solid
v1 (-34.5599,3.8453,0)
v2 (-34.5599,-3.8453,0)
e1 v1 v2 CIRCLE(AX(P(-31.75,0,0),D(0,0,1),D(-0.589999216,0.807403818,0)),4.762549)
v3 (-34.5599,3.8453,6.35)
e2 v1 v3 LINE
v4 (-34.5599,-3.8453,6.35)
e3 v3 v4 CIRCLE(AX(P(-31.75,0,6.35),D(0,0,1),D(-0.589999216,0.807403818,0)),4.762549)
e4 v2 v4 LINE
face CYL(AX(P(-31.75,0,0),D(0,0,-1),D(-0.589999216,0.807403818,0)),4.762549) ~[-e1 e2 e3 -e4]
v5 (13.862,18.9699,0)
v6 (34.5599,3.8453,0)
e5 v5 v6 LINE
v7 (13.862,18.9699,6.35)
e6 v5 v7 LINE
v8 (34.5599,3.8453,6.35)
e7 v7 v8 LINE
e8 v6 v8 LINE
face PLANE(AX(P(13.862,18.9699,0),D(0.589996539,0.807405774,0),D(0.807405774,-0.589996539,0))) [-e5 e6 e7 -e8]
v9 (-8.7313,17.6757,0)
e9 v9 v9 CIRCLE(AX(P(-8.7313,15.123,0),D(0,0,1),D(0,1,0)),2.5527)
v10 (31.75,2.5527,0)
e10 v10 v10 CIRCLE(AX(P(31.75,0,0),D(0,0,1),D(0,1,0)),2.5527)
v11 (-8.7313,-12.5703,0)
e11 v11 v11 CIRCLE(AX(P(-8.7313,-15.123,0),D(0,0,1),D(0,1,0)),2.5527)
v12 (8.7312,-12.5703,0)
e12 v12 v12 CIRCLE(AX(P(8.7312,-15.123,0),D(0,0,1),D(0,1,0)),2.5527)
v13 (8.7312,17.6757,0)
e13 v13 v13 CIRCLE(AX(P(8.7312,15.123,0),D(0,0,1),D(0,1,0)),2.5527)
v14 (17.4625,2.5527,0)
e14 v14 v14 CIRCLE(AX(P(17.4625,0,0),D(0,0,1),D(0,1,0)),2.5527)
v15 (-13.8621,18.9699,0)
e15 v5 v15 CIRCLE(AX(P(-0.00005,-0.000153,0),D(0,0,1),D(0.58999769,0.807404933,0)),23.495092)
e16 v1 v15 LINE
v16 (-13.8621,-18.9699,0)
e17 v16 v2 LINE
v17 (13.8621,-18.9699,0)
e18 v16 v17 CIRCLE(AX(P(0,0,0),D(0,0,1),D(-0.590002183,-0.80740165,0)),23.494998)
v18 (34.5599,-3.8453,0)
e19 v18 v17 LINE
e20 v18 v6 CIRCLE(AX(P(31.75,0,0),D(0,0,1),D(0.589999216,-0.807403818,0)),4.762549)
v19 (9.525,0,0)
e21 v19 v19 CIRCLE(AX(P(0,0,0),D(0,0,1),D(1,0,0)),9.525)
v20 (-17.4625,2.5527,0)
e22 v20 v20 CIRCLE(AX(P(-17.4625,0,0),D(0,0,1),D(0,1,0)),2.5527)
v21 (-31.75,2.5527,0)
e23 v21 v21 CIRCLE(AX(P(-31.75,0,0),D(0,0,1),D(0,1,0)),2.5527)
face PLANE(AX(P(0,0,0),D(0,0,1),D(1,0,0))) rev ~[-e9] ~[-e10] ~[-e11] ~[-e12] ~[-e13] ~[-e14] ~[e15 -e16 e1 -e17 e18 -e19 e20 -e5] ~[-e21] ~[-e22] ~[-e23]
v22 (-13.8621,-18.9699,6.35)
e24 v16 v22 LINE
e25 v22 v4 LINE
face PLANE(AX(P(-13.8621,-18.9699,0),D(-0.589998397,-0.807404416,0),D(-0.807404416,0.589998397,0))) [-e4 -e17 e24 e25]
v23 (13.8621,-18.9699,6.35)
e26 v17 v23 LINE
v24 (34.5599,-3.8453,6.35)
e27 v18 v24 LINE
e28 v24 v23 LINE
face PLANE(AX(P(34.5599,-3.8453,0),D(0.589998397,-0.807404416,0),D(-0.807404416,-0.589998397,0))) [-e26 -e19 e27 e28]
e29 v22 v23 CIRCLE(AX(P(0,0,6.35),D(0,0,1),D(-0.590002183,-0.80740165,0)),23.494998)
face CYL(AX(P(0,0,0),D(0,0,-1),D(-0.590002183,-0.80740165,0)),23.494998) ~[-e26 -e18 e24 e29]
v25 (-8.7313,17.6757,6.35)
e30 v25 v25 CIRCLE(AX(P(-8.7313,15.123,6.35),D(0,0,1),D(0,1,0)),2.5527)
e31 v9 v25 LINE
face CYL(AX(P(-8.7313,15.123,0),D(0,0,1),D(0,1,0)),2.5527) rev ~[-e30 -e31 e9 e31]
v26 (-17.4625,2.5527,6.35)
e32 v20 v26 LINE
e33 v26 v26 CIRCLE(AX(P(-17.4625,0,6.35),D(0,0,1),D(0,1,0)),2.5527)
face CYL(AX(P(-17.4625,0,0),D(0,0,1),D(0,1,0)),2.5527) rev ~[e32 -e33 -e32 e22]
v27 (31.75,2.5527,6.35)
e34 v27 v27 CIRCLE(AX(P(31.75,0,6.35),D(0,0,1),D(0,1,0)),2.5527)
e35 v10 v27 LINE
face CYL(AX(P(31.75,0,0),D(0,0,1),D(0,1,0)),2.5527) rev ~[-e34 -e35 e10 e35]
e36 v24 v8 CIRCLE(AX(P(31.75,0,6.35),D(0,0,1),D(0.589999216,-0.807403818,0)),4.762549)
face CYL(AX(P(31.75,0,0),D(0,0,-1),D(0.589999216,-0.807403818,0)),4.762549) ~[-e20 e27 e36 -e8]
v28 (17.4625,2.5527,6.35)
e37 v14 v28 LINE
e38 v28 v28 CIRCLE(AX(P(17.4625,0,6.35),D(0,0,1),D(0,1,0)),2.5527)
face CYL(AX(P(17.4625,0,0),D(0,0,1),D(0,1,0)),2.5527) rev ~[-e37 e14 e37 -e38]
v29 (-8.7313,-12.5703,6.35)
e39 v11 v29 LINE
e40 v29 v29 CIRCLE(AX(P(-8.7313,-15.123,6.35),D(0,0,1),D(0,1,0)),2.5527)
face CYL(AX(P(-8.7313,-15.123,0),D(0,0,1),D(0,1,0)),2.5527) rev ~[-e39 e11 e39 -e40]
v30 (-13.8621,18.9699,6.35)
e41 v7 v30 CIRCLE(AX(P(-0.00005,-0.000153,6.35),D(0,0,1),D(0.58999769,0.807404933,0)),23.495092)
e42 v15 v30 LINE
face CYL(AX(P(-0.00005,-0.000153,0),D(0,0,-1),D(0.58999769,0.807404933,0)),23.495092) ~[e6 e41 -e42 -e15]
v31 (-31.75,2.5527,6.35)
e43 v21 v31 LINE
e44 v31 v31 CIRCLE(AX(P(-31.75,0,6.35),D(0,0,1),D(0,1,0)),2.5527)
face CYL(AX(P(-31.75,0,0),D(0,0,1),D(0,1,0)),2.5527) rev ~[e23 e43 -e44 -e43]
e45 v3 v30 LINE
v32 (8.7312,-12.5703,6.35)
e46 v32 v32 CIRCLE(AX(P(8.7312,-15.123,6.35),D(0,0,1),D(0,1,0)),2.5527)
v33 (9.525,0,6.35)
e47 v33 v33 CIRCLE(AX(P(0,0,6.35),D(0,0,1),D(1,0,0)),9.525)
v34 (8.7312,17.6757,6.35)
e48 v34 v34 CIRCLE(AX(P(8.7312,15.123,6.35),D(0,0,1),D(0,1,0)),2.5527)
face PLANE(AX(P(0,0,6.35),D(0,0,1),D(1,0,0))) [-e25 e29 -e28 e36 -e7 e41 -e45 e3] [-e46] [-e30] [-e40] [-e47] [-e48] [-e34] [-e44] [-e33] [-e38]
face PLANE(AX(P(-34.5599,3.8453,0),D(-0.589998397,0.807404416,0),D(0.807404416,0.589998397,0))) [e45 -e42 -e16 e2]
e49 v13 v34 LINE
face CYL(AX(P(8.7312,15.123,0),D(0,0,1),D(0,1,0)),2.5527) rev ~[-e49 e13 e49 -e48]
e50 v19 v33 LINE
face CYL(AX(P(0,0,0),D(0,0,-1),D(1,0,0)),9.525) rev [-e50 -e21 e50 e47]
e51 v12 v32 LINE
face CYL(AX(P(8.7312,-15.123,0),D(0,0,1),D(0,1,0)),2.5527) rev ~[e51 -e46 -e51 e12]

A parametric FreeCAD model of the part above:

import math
import FreeCAD as App
import Part
import Sketcher
Q = App.Units.Quantity

doc = App.newDocument("Part")
body = doc.addObject("PartDesign::Body", "Body")

# Sketch on XY plane
sketch1 = body.newObject("Sketcher::SketchObject", "Sketch")
sketch1.AttachmentSupport = (doc.getObject("XY_Plane"), [""])
sketch1.MapMode = "FlatFace"
sketch1.addGeometry(Part.LineSegment(App.Vector(-13.8621, 18.9699, 0), App.Vector(-34.5599, 3.8453, 0)), False)
sketch1.addGeometry(Part.ArcOfCircle(Part.Circle(App.Vector(-31.75, 0, 0), App.Vector(0, 0, 1), 4.762549), math.radians(126.156953), math.radians(233.843047)), False)
sketch1.addGeometry(Part.LineSegment(App.Vector(-34.5599, -3.8453, 0), App.Vector(-13.8621, -18.9699, 0)), False)
sketch1.addGeometry(Part.ArcOfCircle(Part.Circle(App.Vector(0, 0, 0), App.Vector(0, 0, 1), 23.494998), math.radians(-126.157163), math.radians(-53.842837)), False)
sketch1.addGeometry(Part.LineSegment(App.Vector(13.8621, -18.9699, 0), App.Vector(34.5599, -3.8453, 0)), False)
sketch1.addGeometry(Part.ArcOfCircle(Part.Circle(App.Vector(31.75, 0, 0), App.Vector(0, 0, 1), 4.762549), math.radians(-53.843047), math.radians(53.843047)), False)
sketch1.addGeometry(Part.LineSegment(App.Vector(34.5599, 3.8453, 0), App.Vector(13.862, 18.9699, 0)), False)
sketch1.addGeometry(Part.ArcOfCircle(Part.Circle(App.Vector(0, 0, 0), App.Vector(0, 0, 1), 23.495), math.radians(53.843034), math.radians(126.157163)), False)
sketch1.addGeometry(Part.Circle(App.Vector(0, 0, 0), App.Vector(0, 0, 1), 9.525), False)
sketch1.addConstraint(Sketcher.Constraint("Tangent", 0, 2, 1, 1))
sketch1.addConstraint(Sketcher.Constraint("Tangent", 1, 2, 2, 1))
sketch1.addConstraint(Sketcher.Constraint("Tangent", 2, 2, 3, 1))
sketch1.addConstraint(Sketcher.Constraint("Tangent", 3, 2, 4, 1))
sketch1.addConstraint(Sketcher.Constraint("Tangent", 4, 2, 5, 1))
sketch1.addConstraint(Sketcher.Constraint("Tangent", 5, 2, 6, 1))
sketch1.addConstraint(Sketcher.Constraint("Tangent", 6, 2, 7, 1))
sketch1.addConstraint(Sketcher.Constraint("Tangent", 7, 2, 0, 1))
sketch1.addConstraint(Sketcher.Constraint("Coincident", 3, 3, -1, 1))
sketch1.addConstraint(Sketcher.Constraint("Coincident", 7, 3, -1, 1))
sketch1.addConstraint(Sketcher.Constraint("Coincident", 8, 3, -1, 1))
sketch1.addConstraint(Sketcher.Constraint("Equal", 1, 5))
sketch1.addConstraint(Sketcher.Constraint("Equal", 3, 7))
sketch1.addConstraint(Sketcher.Constraint("Symmetric", 1, 3, 5, 3, -1, 1))
sketch1.addConstraint(Sketcher.Constraint("PointOnObject", 1, 3, -1))
sketch1.addConstraint(Sketcher.Constraint("Diameter", 8, Q("0.75 in")))
sketch1.addConstraint(Sketcher.Constraint("Radius", 1, Q("0.1875 in")))
sketch1.addConstraint(Sketcher.Constraint("Radius", 3, Q("0.925 in")))
sketch1.addConstraint(Sketcher.Constraint("DistanceX", 1, 3, 5, 3, Q("2.5 in")))
pad1 = body.newObject("PartDesign::Pad", "Pad")
pad1.Profile = sketch1
pad1.Length = Q("0.25 in")

# Sketch on XY plane
sketch2 = body.newObject("Sketcher::SketchObject", "Sketch001")
sketch2.AttachmentSupport = (doc.getObject("XY_Plane"), [""])
sketch2.MapMode = "FlatFace"
sketch2.addGeometry(Part.Circle(App.Vector(8.7312, 15.123, 0), App.Vector(0, 0, 1), 2.5527), False)
sketch2.addGeometry(Part.Circle(App.Vector(-8.7313, 15.123, 0), App.Vector(0, 0, 1), 2.5527), False)
sketch2.addGeometry(Part.Circle(App.Vector(-17.4625, 0, 0), App.Vector(0, 0, 1), 2.5527), False)
sketch2.addGeometry(Part.Circle(App.Vector(-8.7313, -15.123, 0), App.Vector(0, 0, 1), 2.5527), False)
sketch2.addGeometry(Part.Circle(App.Vector(8.7312, -15.123, 0), App.Vector(0, 0, 1), 2.5527), False)
sketch2.addGeometry(Part.Circle(App.Vector(31.75, 0, 0), App.Vector(0, 0, 1), 2.5527), False)
sketch2.addGeometry(Part.Circle(App.Vector(-31.75, 0, 0), App.Vector(0, 0, 1), 2.5527), False)
sketch2.addGeometry(Part.Circle(App.Vector(17.4625, 0, 0), App.Vector(0, 0, 1), 2.5527), False)
sketch2.addConstraint(Sketcher.Constraint("Equal", 0, 1))
sketch2.addConstraint(Sketcher.Constraint("Equal", 1, 2))
sketch2.addConstraint(Sketcher.Constraint("Equal", 2, 3))
sketch2.addConstraint(Sketcher.Constraint("Equal", 3, 4))
sketch2.addConstraint(Sketcher.Constraint("Equal", 4, 5))
sketch2.addConstraint(Sketcher.Constraint("Equal", 5, 6))
sketch2.addConstraint(Sketcher.Constraint("Equal", 6, 7))
sketch2.addConstraint(Sketcher.Constraint("Symmetric", 0, 3, 3, 3, -1, 1))
sketch2.addConstraint(Sketcher.Constraint("Symmetric", 1, 3, 4, 3, -1, 1))
sketch2.addConstraint(Sketcher.Constraint("Symmetric", 5, 3, 6, 3, -1, 1))
sketch2.addConstraint(Sketcher.Constraint("Symmetric", 2, 3, 7, 3, -1, 1))
sketch2.addConstraint(Sketcher.Constraint("Symmetric", 0, 3, 1, 3, -2))
sketch2.addConstraint(Sketcher.Constraint("PointOnObject", 2, 3, -1))
sketch2.addConstraint(Sketcher.Constraint("PointOnObject", 5, 3, -1))
sketch2.addConstraint(Sketcher.Constraint("Diameter", 0, Q("0.201 in")))
sketch2.addConstraint(Sketcher.Constraint("DistanceX", -1, 1, 5, 3, Q("1.25 in")))
sketch2.addConstraint(Sketcher.Constraint("DistanceX", -1, 1, 0, 3, Q("0.343748 in")))
sketch2.addConstraint(Sketcher.Constraint("DistanceX", 2, 3, -1, 1, Q("0.6875 in")))
sketch2.addConstraint(Sketcher.Constraint("DistanceY", -1, 1, 0, 3, Q("0.5954 in")))
doc.recompute()
hole = body.newObject("PartDesign::Hole", "Hole")
hole.Profile = sketch2
hole.ThreadType = "None"
hole.Diameter = Q("0.201 in")
hole.DepthType = "ThroughAll"
hole.Reversed = True

doc.recompute()
